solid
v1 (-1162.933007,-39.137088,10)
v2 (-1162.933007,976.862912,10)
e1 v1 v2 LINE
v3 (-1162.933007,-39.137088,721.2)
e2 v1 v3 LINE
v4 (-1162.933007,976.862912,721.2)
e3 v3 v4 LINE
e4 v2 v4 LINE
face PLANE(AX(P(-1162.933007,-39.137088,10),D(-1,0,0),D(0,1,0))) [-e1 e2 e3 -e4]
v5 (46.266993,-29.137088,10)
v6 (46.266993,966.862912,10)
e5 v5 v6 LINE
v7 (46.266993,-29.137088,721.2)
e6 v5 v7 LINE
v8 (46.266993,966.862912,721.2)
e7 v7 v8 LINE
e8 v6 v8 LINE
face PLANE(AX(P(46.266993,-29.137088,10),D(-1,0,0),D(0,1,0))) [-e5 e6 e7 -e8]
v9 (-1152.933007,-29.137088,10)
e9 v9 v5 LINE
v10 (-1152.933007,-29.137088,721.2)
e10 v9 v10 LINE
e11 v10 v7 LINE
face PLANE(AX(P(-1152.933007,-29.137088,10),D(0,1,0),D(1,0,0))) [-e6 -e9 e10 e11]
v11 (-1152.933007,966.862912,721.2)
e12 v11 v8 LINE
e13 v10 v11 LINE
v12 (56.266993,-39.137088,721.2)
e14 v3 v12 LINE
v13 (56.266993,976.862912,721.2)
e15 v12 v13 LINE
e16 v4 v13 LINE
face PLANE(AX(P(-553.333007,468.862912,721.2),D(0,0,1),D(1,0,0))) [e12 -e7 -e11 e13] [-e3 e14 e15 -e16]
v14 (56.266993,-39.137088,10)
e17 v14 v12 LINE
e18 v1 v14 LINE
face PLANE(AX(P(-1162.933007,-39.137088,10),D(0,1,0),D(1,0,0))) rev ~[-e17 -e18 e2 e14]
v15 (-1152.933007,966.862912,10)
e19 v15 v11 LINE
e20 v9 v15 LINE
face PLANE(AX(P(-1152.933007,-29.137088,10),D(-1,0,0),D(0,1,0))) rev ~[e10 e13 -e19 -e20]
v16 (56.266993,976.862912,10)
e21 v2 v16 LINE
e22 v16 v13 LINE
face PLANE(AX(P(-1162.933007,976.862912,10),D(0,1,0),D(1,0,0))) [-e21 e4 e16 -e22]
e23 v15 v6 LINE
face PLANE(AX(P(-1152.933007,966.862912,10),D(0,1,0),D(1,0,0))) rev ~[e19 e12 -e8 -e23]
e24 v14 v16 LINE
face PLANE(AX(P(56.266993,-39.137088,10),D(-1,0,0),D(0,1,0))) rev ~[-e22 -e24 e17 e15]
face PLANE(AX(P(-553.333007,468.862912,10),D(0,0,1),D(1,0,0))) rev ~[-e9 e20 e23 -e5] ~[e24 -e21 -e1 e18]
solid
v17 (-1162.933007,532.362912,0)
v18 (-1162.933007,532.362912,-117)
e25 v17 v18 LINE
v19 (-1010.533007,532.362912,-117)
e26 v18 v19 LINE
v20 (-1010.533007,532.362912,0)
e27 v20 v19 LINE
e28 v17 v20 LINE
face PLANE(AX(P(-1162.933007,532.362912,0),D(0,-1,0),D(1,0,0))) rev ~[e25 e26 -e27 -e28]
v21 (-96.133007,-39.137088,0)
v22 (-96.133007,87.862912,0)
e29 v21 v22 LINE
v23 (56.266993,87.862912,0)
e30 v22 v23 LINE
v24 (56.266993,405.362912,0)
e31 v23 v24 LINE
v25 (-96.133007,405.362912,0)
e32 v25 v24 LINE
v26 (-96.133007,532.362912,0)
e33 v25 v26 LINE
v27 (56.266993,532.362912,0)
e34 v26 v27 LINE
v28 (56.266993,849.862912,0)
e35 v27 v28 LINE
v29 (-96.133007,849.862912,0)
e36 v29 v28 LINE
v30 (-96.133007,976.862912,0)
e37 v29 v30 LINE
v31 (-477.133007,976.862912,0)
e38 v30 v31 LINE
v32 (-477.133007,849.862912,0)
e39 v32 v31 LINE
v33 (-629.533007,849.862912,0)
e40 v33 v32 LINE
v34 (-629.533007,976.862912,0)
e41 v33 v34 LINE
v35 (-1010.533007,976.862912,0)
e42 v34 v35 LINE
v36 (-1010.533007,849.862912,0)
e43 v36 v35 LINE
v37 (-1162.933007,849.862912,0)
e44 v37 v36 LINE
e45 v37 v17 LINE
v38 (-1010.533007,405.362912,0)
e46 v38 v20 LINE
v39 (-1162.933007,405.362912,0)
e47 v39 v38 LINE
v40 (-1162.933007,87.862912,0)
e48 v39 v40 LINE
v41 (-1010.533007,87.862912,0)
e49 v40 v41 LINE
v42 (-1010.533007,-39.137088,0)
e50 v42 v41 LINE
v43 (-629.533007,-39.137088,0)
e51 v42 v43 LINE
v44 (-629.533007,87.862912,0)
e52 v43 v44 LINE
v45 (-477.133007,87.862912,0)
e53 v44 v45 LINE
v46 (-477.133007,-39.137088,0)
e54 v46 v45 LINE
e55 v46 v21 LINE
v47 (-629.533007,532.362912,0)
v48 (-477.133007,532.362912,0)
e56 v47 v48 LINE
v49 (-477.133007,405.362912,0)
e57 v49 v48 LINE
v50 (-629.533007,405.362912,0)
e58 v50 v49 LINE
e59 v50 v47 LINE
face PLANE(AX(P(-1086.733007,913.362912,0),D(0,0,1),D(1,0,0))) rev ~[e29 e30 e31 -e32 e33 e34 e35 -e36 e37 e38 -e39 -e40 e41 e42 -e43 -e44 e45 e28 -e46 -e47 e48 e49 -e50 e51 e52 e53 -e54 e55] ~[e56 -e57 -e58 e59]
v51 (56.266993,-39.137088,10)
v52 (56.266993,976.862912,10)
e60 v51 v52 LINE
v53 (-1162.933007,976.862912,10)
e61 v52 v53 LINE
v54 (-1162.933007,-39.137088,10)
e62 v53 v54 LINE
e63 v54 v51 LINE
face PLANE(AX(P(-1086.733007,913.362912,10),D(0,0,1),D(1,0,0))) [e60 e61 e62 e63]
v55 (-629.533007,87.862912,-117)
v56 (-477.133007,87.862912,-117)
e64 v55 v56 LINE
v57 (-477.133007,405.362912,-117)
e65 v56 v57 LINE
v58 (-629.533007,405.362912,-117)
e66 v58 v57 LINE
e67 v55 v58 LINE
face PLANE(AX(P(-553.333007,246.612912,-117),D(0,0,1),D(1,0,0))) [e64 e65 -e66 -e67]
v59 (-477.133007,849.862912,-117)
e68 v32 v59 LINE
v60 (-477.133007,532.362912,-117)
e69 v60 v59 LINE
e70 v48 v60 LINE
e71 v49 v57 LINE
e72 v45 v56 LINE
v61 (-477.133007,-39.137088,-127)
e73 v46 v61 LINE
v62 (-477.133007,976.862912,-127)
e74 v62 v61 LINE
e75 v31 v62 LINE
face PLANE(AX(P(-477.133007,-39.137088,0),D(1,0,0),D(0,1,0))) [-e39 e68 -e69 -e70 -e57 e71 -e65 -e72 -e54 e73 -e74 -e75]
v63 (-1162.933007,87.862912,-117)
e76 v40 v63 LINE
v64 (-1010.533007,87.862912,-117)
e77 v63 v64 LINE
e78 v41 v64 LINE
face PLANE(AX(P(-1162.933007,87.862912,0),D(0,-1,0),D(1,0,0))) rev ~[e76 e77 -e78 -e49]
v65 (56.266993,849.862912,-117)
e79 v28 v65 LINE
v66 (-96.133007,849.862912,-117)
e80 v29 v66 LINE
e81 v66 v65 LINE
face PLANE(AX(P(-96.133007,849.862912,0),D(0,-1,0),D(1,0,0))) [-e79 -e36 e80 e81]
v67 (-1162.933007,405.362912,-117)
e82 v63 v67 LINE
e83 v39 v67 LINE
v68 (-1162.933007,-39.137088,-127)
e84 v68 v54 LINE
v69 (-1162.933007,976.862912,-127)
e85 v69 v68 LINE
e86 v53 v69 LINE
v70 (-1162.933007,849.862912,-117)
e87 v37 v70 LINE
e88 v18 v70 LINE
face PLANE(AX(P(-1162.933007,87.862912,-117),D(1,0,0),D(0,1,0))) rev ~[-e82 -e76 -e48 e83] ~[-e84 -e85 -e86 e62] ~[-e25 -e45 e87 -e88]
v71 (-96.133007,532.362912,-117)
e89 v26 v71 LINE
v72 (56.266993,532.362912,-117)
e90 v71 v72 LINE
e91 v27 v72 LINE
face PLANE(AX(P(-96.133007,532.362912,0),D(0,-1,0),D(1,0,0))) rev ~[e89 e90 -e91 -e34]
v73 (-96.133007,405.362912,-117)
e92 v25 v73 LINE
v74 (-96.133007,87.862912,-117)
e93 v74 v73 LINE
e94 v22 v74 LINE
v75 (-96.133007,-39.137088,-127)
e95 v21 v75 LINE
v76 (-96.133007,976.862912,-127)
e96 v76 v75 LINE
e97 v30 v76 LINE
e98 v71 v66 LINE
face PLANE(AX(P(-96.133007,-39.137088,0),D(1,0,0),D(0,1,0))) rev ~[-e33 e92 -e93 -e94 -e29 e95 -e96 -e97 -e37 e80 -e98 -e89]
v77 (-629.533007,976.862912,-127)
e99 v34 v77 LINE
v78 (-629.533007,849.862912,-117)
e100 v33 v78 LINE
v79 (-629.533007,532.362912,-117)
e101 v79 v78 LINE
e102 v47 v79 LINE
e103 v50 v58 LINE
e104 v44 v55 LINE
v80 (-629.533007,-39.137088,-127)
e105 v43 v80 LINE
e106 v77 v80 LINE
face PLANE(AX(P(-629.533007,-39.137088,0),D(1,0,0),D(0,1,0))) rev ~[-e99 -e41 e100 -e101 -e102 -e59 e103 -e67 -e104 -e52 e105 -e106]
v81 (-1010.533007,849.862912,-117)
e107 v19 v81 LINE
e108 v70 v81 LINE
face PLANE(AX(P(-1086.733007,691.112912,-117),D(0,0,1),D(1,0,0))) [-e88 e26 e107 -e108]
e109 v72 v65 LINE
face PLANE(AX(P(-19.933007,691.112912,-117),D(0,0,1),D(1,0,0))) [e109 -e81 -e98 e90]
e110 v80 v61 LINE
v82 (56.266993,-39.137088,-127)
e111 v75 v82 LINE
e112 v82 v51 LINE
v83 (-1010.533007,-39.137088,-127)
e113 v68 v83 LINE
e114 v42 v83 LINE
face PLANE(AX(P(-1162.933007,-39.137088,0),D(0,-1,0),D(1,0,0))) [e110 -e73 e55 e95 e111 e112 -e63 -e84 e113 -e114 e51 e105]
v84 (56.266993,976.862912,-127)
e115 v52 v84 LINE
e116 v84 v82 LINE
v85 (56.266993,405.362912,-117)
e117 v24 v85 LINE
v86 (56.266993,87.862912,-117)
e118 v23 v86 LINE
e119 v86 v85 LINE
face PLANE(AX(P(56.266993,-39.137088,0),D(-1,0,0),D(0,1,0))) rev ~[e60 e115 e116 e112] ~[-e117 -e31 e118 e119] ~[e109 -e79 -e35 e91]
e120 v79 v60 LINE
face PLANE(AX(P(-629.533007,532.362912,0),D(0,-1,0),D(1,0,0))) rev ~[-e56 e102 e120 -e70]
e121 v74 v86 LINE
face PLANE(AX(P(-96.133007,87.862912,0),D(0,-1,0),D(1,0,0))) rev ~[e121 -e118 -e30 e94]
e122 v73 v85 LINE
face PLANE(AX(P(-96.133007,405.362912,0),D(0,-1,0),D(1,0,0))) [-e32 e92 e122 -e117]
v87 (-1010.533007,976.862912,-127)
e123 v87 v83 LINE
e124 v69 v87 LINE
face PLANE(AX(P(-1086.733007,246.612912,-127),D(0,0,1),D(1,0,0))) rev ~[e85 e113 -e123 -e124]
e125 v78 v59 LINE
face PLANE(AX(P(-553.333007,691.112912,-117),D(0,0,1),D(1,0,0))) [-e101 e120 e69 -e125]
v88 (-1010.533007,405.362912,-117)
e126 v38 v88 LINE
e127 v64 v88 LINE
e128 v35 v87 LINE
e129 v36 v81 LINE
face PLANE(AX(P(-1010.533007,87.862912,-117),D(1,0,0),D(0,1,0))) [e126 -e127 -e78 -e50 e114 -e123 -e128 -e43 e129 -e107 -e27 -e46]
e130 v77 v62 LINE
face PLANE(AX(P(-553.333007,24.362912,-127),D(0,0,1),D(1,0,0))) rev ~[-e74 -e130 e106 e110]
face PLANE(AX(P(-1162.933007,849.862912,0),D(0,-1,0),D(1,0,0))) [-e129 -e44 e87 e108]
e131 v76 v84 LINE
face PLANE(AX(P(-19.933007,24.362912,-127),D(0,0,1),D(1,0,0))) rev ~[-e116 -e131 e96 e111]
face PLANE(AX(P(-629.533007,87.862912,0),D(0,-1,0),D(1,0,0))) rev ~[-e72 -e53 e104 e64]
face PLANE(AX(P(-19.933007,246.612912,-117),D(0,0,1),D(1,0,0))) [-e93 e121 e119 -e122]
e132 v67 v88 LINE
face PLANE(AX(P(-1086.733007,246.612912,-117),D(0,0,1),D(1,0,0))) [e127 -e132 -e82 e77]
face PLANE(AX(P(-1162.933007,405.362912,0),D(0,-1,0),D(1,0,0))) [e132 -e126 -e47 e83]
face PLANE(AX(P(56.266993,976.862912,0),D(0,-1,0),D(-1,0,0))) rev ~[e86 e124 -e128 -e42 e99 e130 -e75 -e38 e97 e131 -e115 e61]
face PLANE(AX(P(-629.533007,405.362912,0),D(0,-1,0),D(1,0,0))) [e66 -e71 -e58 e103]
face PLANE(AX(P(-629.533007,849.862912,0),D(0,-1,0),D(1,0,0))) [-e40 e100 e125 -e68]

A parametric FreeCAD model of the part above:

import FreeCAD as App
import Part
import Sketcher
Q = App.Units.Quantity

doc = App.newDocument("Part")
body = doc.addObject("PartDesign::Body", "Body")

# Sketch on XY plane
sketch1 = body.newObject("Sketcher::SketchObject", "Sketch")
sketch1.AttachmentSupport = (doc.getObject("XY_Plane"), [""])
sketch1.MapMode = "FlatFace"
sketch1.addGeometry(Part.LineSegment(App.Vector(-1163, 977, 0), App.Vector(-1163, -39, 0)), False)
sketch1.addGeometry(Part.LineSegment(App.Vector(-1163, -39, 0), App.Vector(56, -39, 0)), False)
sketch1.addGeometry(Part.LineSegment(App.Vector(56, -39, 0), App.Vector(56, 977, 0)), False)
sketch1.addGeometry(Part.LineSegment(App.Vector(56, 977, 0), App.Vector(-1163, 977, 0)), False)
sketch1.addConstraint(Sketcher.Constraint("Coincident", 0, 2, 1, 1))
sketch1.addConstraint(Sketcher.Constraint("Coincident", 1, 2, 2, 1))
sketch1.addConstraint(Sketcher.Constraint("Coincident", 2, 2, 3, 1))
sketch1.addConstraint(Sketcher.Constraint("Coincident", 3, 2, 0, 1))
sketch1.addConstraint(Sketcher.Constraint("Vertical", 0))
sketch1.addConstraint(Sketcher.Constraint("Horizontal", 1))
sketch1.addConstraint(Sketcher.Constraint("Vertical", 2))
sketch1.addConstraint(Sketcher.Constraint("Horizontal", 3))
sketch1.addConstraint(Sketcher.Constraint("DistanceX", 1, 1, 1, 2, Q("48 in")))
sketch1.addConstraint(Sketcher.Constraint("DistanceY", 0, 2, 0, 1, Q("40 in")))
sketch1.addConstraint(Sketcher.Constraint("DistanceX", 0, 2, -1, 1, 1162.933007))
sketch1.addConstraint(Sketcher.Constraint("DistanceY", 0, 2, -1, 1, 39.137088))
pad1 = body.newObject("PartDesign::Pad", "Pad")
pad1.Profile = sketch1
pad1.Length = 10

# Sketch on XY plane
sketch2 = body.newObject("Sketcher::SketchObject", "Sketch001")
sketch2.AttachmentSupport = (doc.getObject("XY_Plane"), [""])
sketch2.MapMode = "FlatFace"
sketch2.addGeometry(Part.LineSegment(App.Vector(-1163, 88, 0), App.Vector(-1163, -39, 0)), False)
sketch2.addGeometry(Part.LineSegment(App.Vector(-1163, -39, 0), App.Vector(-1011, -39, 0)), False)
sketch2.addGeometry(Part.LineSegment(App.Vector(-1011, -39, 0), App.Vector(-1011, 88, 0)), False)
sketch2.addGeometry(Part.LineSegment(App.Vector(-1011, 88, 0), App.Vector(-1163, 88, 0)), False)
sketch2.addGeometry(Part.LineSegment(App.Vector(-630, 88, 0), App.Vector(-630, -39, 0)), False)
sketch2.addGeometry(Part.LineSegment(App.Vector(-630, -39, 0), App.Vector(-477, -39, 0)), False)
sketch2.addGeometry(Part.LineSegment(App.Vector(-477, -39, 0), App.Vector(-477, 88, 0)), False)
sketch2.addGeometry(Part.LineSegment(App.Vector(-477, 88, 0), App.Vector(-630, 88, 0)), False)
sketch2.addGeometry(Part.LineSegment(App.Vector(-96, 88, 0), App.Vector(-96, -39, 0)), False)
sketch2.addGeometry(Part.LineSegment(App.Vector(-96, -39, 0), App.Vector(56, -39, 0)), False)
sketch2.addGeometry(Part.LineSegment(App.Vector(56, -39, 0), App.Vector(56, 88, 0)), False)
sketch2.addGeometry(Part.LineSegment(App.Vector(56, 88, 0), App.Vector(-96, 88, 0)), False)
sketch2.addGeometry(Part.LineSegment(App.Vector(-96, 532, 0), App.Vector(-96, 405, 0)), False)
sketch2.addGeometry(Part.LineSegment(App.Vector(-96, 405, 0), App.Vector(56, 405, 0)), False)
sketch2.addGeometry(Part.LineSegment(App.Vector(56, 405, 0), App.Vector(56, 532, 0)), False)
sketch2.addGeometry(Part.LineSegment(App.Vector(56, 532, 0), App.Vector(-96, 532, 0)), False)
sketch2.addGeometry(Part.LineSegment(App.Vector(-630, 532, 0), App.Vector(-630, 405, 0)), False)
sketch2.addGeometry(Part.LineSegment(App.Vector(-630, 405, 0), App.Vector(-477, 405, 0)), False)
sketch2.addGeometry(Part.LineSegment(App.Vector(-477, 405, 0), App.Vector(-477, 532, 0)), False)
sketch2.addGeometry(Part.LineSegment(App.Vector(-477, 532, 0), App.Vector(-630, 532, 0)), False)
sketch2.addGeometry(Part.LineSegment(App.Vector(-1163, 532, 0), App.Vector(-1163, 405, 0)), False)
sketch2.addGeometry(Part.LineSegment(App.Vector(-1163, 405, 0), App.Vector(-1011, 405, 0)), False)
sketch2.addGeometry(Part.LineSegment(App.Vector(-1011, 405, 0), App.Vector(-1011, 532, 0)), False)
sketch2.addGeometry(Part.LineSegment(App.Vector(-1011, 532, 0), App.Vector(-1163, 532, 0)), False)
sketch2.addGeometry(Part.LineSegment(App.Vector(-1163, 977, 0), App.Vector(-1163, 850, 0)), False)
sketch2.addGeometry(Part.LineSegment(App.Vector(-1163, 850, 0), App.Vector(-1011, 850, 0)), False)
sketch2.addGeometry(Part.LineSegment(App.Vector(-1011, 850, 0), App.Vector(-1011, 977, 0)), False)
sketch2.addGeometry(Part.LineSegment(App.Vector(-1011, 977, 0), App.Vector(-1163, 977, 0)), False)
sketch2.addGeometry(Part.LineSegment(App.Vector(-630, 977, 0), App.Vector(-630, 850, 0)), False)
sketch2.addGeometry(Part.LineSegment(App.Vector(-630, 850, 0), App.Vector(-477, 850, 0)), False)
sketch2.addGeometry(Part.LineSegment(App.Vector(-477, 850, 0), App.Vector(-477, 977, 0)), False)
sketch2.addGeometry(Part.LineSegment(App.Vector(-477, 977, 0), App.Vector(-630, 977, 0)), False)
sketch2.addGeometry(Part.LineSegment(App.Vector(-96, 977, 0), App.Vector(-96, 850, 0)), False)
sketch2.addGeometry(Part.LineSegment(App.Vector(-96, 850, 0), App.Vector(56, 850, 0)), False)
sketch2.addGeometry(Part.LineSegment(App.Vector(56, 850, 0), App.Vector(56, 977, 0)), False)
sketch2.addGeometry(Part.LineSegment(App.Vector(56, 977, 0), App.Vector(-96, 977, 0)), False)
sketch2.addConstraint(Sketcher.Constraint("Coincident", 0, 2, 1, 1))
sketch2.addConstraint(Sketcher.Constraint("Coincident", 1, 2, 2, 1))
sketch2.addConstraint(Sketcher.Constraint("Coincident", 2, 2, 3, 1))
sketch2.addConstraint(Sketcher.Constraint("Coincident", 3, 2, 0, 1))
sketch2.addConstraint(Sketcher.Constraint("Coincident", 4, 2, 5, 1))
sketch2.addConstraint(Sketcher.Constraint("Coincident", 5, 2, 6, 1))
sketch2.addConstraint(Sketcher.Constraint("Coincident", 6, 2, 7, 1))
sketch2.addConstraint(Sketcher.Constraint("Coincident", 7, 2, 4, 1))
sketch2.addConstraint(Sketcher.Constraint("Coincident", 8, 2, 9, 1))
sketch2.addConstraint(Sketcher.Constraint("Coincident", 9, 2, 10, 1))
sketch2.addConstraint(Sketcher.Constraint("Coincident", 10, 2, 11, 1))
sketch2.addConstraint(Sketcher.Constraint("Coincident", 11, 2, 8, 1))
sketch2.addConstraint(Sketcher.Constraint("Coincident", 12, 2, 13, 1))
sketch2.addConstraint(Sketcher.Constraint("Coincident", 13, 2, 14, 1))
sketch2.addConstraint(Sketcher.Constraint("Coincident", 14, 2, 15, 1))
sketch2.addConstraint(Sketcher.Constraint("Coincident", 15, 2, 12, 1))
sketch2.addConstraint(Sketcher.Constraint("Coincident", 16, 2, 17, 1))
sketch2.addConstraint(Sketcher.Constraint("Coincident", 17, 2, 18, 1))
sketch2.addConstraint(Sketcher.Constraint("Coincident", 18, 2, 19, 1))
sketch2.addConstraint(Sketcher.Constraint("Coincident", 19, 2, 16, 1))
sketch2.addConstraint(Sketcher.Constraint("Coincident", 20, 2, 21, 1))
sketch2.addConstraint(Sketcher.Constraint("Coincident", 21, 2, 22, 1))
sketch2.addConstraint(Sketcher.Constraint("Coincident", 22, 2, 23, 1))
sketch2.addConstraint(Sketcher.Constraint("Coincident", 23, 2, 20, 1))
sketch2.addConstraint(Sketcher.Constraint("Coincident", 24, 2, 25, 1))
sketch2.addConstraint(Sketcher.Constraint("Coincident", 25, 2, 26, 1))
sketch2.addConstraint(Sketcher.Constraint("Coincident", 26, 2, 27, 1))
sketch2.addConstraint(Sketcher.Constraint("Coincident", 27, 2, 24, 1))
sketch2.addConstraint(Sketcher.Constraint("Coincident", 28, 2, 29, 1))
sketch2.addConstraint(Sketcher.Constraint("Coincident", 29, 2, 30, 1))
sketch2.addConstraint(Sketcher.Constraint("Coincident", 30, 2, 31, 1))
sketch2.addConstraint(Sketcher.Constraint("Coincident", 31, 2, 28, 1))
sketch2.addConstraint(Sketcher.Constraint("Coincident", 32, 2, 33, 1))
sketch2.addConstraint(Sketcher.Constraint("Coincident", 33, 2, 34, 1))
sketch2.addConstraint(Sketcher.Constraint("Coincident", 34, 2, 35, 1))
sketch2.addConstraint(Sketcher.Constraint("Coincident", 35, 2, 32, 1))
sketch2.addConstraint(Sketcher.Constraint("Vertical", 0))
sketch2.addConstraint(Sketcher.Constraint("Horizontal", 1))
sketch2.addConstraint(Sketcher.Constraint("Vertical", 2))
sketch2.addConstraint(Sketcher.Constraint("Horizontal", 3))
sketch2.addConstraint(Sketcher.Constraint("Vertical", 4))
sketch2.addConstraint(Sketcher.Constraint("Horizontal", 5))
sketch2.addConstraint(Sketcher.Constraint("Vertical", 6))
sketch2.addConstraint(Sketcher.Constraint("Horizontal", 7))
sketch2.addConstraint(Sketcher.Constraint("Vertical", 8))
sketch2.addConstraint(Sketcher.Constraint("Horizontal", 9))
sketch2.addConstraint(Sketcher.Constraint("Vertical", 10))
sketch2.addConstraint(Sketcher.Constraint("Horizontal", 11))
sketch2.addConstraint(Sketcher.Constraint("Vertical", 12))
sketch2.addConstraint(Sketcher.Constraint("Horizontal", 13))
sketch2.addConstraint(Sketcher.Constraint("Vertical", 14))
sketch2.addConstraint(Sketcher.Constraint("Horizontal", 15))
sketch2.addConstraint(Sketcher.Constraint("Vertical", 16))
sketch2.addConstraint(Sketcher.Constraint("Horizontal", 17))
sketch2.addConstraint(Sketcher.Constraint("Vertical", 18))
sketch2.addConstraint(Sketcher.Constraint("Horizontal", 19))
sketch2.addConstraint(Sketcher.Constraint("Vertical", 20))
sketch2.addConstraint(Sketcher.Constraint("Horizontal", 21))
sketch2.addConstraint(Sketcher.Constraint("Vertical", 22))
sketch2.addConstraint(Sketcher.Constraint("Horizontal", 23))
sketch2.addConstraint(Sketcher.Constraint("Vertical", 24))
sketch2.addConstraint(Sketcher.Constraint("Horizontal", 25))
sketch2.addConstraint(Sketcher.Constraint("Vertical", 26))
sketch2.addConstraint(Sketcher.Constraint("Horizontal", 27))
sketch2.addConstraint(Sketcher.Constraint("Vertical", 28))
sketch2.addConstraint(Sketcher.Constraint("Horizontal", 29))
sketch2.addConstraint(Sketcher.Constraint("Vertical", 30))
sketch2.addConstraint(Sketcher.Constraint("Horizontal", 31))
sketch2.addConstraint(Sketcher.Constraint("Vertical", 32))
sketch2.addConstraint(Sketcher.Constraint("Horizontal", 33))
sketch2.addConstraint(Sketcher.Constraint("Vertical", 34))
sketch2.addConstraint(Sketcher.Constraint("Horizontal", 35))
sketch2.addConstraint(Sketcher.Constraint("Horizontal", 1, 2, 4, 2))
sketch2.addConstraint(Sketcher.Constraint("Horizontal", 3, 2, 6, 2))
sketch2.addConstraint(Sketcher.Constraint("Horizontal", 5, 2, 8, 2))
sketch2.addConstraint(Sketcher.Constraint("Horizontal", 7, 2, 10, 2))
sketch2.addConstraint(Sketcher.Constraint("Horizontal", 13, 2, 16, 2))
sketch2.addConstraint(Sketcher.Constraint("Horizontal", 15, 2, 18, 2))
sketch2.addConstraint(Sketcher.Constraint("Horizontal", 17, 2, 20, 2))
sketch2.addConstraint(Sketcher.Constraint("Horizontal", 19, 2, 22, 2))
sketch2.addConstraint(Sketcher.Constraint("Horizontal", 25, 2, 28, 2))
sketch2.addConstraint(Sketcher.Constraint("Horizontal", 27, 2, 30, 2))
sketch2.addConstraint(Sketcher.Constraint("Horizontal", 29, 2, 32, 2))
sketch2.addConstraint(Sketcher.Constraint("Horizontal", 31, 2, 34, 2))
sketch2.addConstraint(Sketcher.Constraint("Vertical", 11, 2, 12, 2))
sketch2.addConstraint(Sketcher.Constraint("Vertical", 10, 2, 13, 2))
sketch2.addConstraint(Sketcher.Constraint("Vertical", 7, 2, 16, 2))
sketch2.addConstraint(Sketcher.Constraint("Vertical", 6, 2, 17, 2))
sketch2.addConstraint(Sketcher.Constraint("Vertical", 3, 2, 20, 2))
sketch2.addConstraint(Sketcher.Constraint("Vertical", 2, 2, 21, 2))
sketch2.addConstraint(Sketcher.Constraint("Vertical", 23, 2, 24, 2))
sketch2.addConstraint(Sketcher.Constraint("Vertical", 22, 2, 25, 2))
sketch2.addConstraint(Sketcher.Constraint("Vertical", 19, 2, 28, 2))
sketch2.addConstraint(Sketcher.Constraint("Vertical", 18, 2, 29, 2))
sketch2.addConstraint(Sketcher.Constraint("Vertical", 15, 2, 32, 2))
sketch2.addConstraint(Sketcher.Constraint("Vertical", 14, 2, 33, 2))
sketch2.addConstraint(Sketcher.Constraint("Equal", 3, 5))
sketch2.addConstraint(Sketcher.Constraint("Equal", 7, 9))
sketch2.addConstraint(Sketcher.Constraint("Equal", 10, 12))
sketch2.addConstraint(Sketcher.Constraint("Equal", 22, 24))
sketch2.addConstraint(Sketcher.Constraint("DistanceX", 1, 1, 1, 2, Q("6 in")))
sketch2.addConstraint(Sketcher.Constraint("DistanceY", 0, 2, 0, 1, Q("5 in")))
sketch2.addConstraint(Sketcher.Constraint("DistanceX", 1, 2, 4, 2, Q("15 in")))
sketch2.addConstraint(Sketcher.Constraint("DistanceX", 5, 2, 8, 2, Q("15 in")))
sketch2.addConstraint(Sketcher.Constraint("DistanceY", 11, 2, 12, 2, Q("12.5 in")))
sketch2.addConstraint(Sketcher.Constraint("DistanceY", 23, 2, 24, 2, Q("12.5 in")))
sketch2.addConstraint(Sketcher.Constraint("DistanceX", 0, 2, -1, 1, 1162.933007))
sketch2.addConstraint(Sketcher.Constraint("DistanceY", 0, 2, -1, 1, 39.137088))
pad2 = body.newObject("PartDesign::Pad", "Pad001")
pad2.Profile = sketch2
pad2.Length = Q("5 in")
pad2.Reversed = True

# Sketch on XY plane
sketch3 = body.newObject("Sketcher::SketchObject", "Sketch002")
sketch3.AttachmentSupport = (doc.getObject("XY_Plane"), [""])
sketch3.MapMode = "FlatFace"
sketch3.AttachmentOffset = App.Placement(App.Vector(0, 0, -117), App.Rotation())
sketch3.addGeometry(Part.LineSegment(App.Vector(-1163, 405, 0), App.Vector(-1163, 88, 0)), False)
sketch3.addGeometry(Part.LineSegment(App.Vector(-1163, 88, 0), App.Vector(-1011, 88, 0)), False)
sketch3.addGeometry(Part.LineSegment(App.Vector(-1011, 88, 0), App.Vector(-1011, 405, 0)), False)
sketch3.addGeometry(Part.LineSegment(App.Vector(-1011, 405, 0), App.Vector(-1163, 405, 0)), False)
sketch3.addGeometry(Part.LineSegment(App.Vector(-630, 405, 0), App.Vector(-630, 88, 0)), False)
sketch3.addGeometry(Part.LineSegment(App.Vector(-630, 88, 0), App.Vector(-477, 88, 0)), False)
sketch3.addGeometry(Part.LineSegment(App.Vector(-477, 88, 0), App.Vector(-477, 405, 0)), False)
sketch3.addGeometry(Part.LineSegment(App.Vector(-477, 405, 0), App.Vector(-630, 405, 0)), False)
sketch3.addGeometry(Part.LineSegment(App.Vector(-96, 405, 0), App.Vector(-96, 88, 0)), False)
sketch3.addGeometry(Part.LineSegment(App.Vector(-96, 88, 0), App.Vector(56, 88, 0)), False)
sketch3.addGeometry(Part.LineSegment(App.Vector(56, 88, 0), App.Vector(56, 405, 0)), False)
sketch3.addGeometry(Part.LineSegment(App.Vector(56, 405, 0), App.Vector(-96, 405, 0)), False)
sketch3.addGeometry(Part.LineSegment(App.Vector(-96, 850, 0), App.Vector(-96, 532, 0)), False)
sketch3.addGeometry(Part.LineSegment(App.Vector(-96, 532, 0), App.Vector(56, 532, 0)), False)
sketch3.addGeometry(Part.LineSegment(App.Vector(56, 532, 0), App.Vector(56, 850, 0)), False)
sketch3.addGeometry(Part.LineSegment(App.Vector(56, 850, 0), App.Vector(-96, 850, 0)), False)
sketch3.addGeometry(Part.LineSegment(App.Vector(-630, 850, 0), App.Vector(-630, 532, 0)), False)
sketch3.addGeometry(Part.LineSegment(App.Vector(-630, 532, 0), App.Vector(-477, 532, 0)), False)
sketch3.addGeometry(Part.LineSegment(App.Vector(-477, 532, 0), App.Vector(-477, 850, 0)), False)
sketch3.addGeometry(Part.LineSegment(App.Vector(-477, 850, 0), App.Vector(-630, 850, 0)), False)
sketch3.addGeometry(Part.LineSegment(App.Vector(-1163, 850, 0), App.Vector(-1163, 532, 0)), False)
sketch3.addGeometry(Part.LineSegment(App.Vector(-1163, 532, 0), App.Vector(-1011, 532, 0)), False)
sketch3.addGeometry(Part.LineSegment(App.Vector(-1011, 532, 0), App.Vector(-1011, 850, 0)), False)
sketch3.addGeometry(Part.LineSegment(App.Vector(-1011, 850, 0), App.Vector(-1163, 850, 0)), False)
sketch3.addConstraint(Sketcher.Constraint("Coincident", 0, 2, 1, 1))
sketch3.addConstraint(Sketcher.Constraint("Coincident", 1, 2, 2, 1))
sketch3.addConstraint(Sketcher.Constraint("Coincident", 2, 2, 3, 1))
sketch3.addConstraint(Sketcher.Constraint("Coincident", 3, 2, 0, 1))
sketch3.addConstraint(Sketcher.Constraint("Coincident", 4, 2, 5, 1))
sketch3.addConstraint(Sketcher.Constraint("Coincident", 5, 2, 6, 1))
sketch3.addConstraint(Sketcher.Constraint("Coincident", 6, 2, 7, 1))
sketch3.addConstraint(Sketcher.Constraint("Coincident", 7, 2, 4, 1))
sketch3.addConstraint(Sketcher.Constraint("Coincident", 8, 2, 9, 1))
sketch3.addConstraint(Sketcher.Constraint("Coincident", 9, 2, 10, 1))
sketch3.addConstraint(Sketcher.Constraint("Coincident", 10, 2, 11, 1))
sketch3.addConstraint(Sketcher.Constraint("Coincident", 11, 2, 8, 1))
sketch3.addConstraint(Sketcher.Constraint("Coincident", 12, 2, 13, 1))
sketch3.addConstraint(Sketcher.Constraint("Coincident", 13, 2, 14, 1))
sketch3.addConstraint(Sketcher.Constraint("Coincident", 14, 2, 15, 1))
sketch3.addConstraint(Sketcher.Constraint("Coincident", 15, 2, 12, 1))
sketch3.addConstraint(Sketcher.Constraint("Coincident", 16, 2, 17, 1))
sketch3.addConstraint(Sketcher.Constraint("Coincident", 17, 2, 18, 1))
sketch3.addConstraint(Sketcher.Constraint("Coincident", 18, 2, 19, 1))
sketch3.addConstraint(Sketcher.Constraint("Coincident", 19, 2, 16, 1))
sketch3.addConstraint(Sketcher.Constraint("Coincident", 20, 2, 21, 1))
sketch3.addConstraint(Sketcher.Constraint("Coincident", 21, 2, 22, 1))
sketch3.addConstraint(Sketcher.Constraint("Coincident", 22, 2, 23, 1))
sketch3.addConstraint(Sketcher.Constraint("Coincident", 23, 2, 20, 1))
sketch3.addConstraint(Sketcher.Constraint("Vertical", 0))
sketch3.addConstraint(Sketcher.Constraint("Horizontal", 1))
sketch3.addConstraint(Sketcher.Constraint("Vertical", 2))
sketch3.addConstraint(Sketcher.Constraint("Horizontal", 3))
sketch3.addConstraint(Sketcher.Constraint("Vertical", 4))
sketch3.addConstraint(Sketcher.Constraint("Horizontal", 5))
sketch3.addConstraint(Sketcher.Constraint("Vertical", 6))
sketch3.addConstraint(Sketcher.Constraint("Horizontal", 7))
sketch3.addConstraint(Sketcher.Constraint("Vertical", 8))
sketch3.addConstraint(Sketcher.Constraint("Horizontal", 9))
sketch3.addConstraint(Sketcher.Constraint("Vertical", 10))
sketch3.addConstraint(Sketcher.Constraint("Horizontal", 11))
sketch3.addConstraint(Sketcher.Constraint("Vertical", 12))
sketch3.addConstraint(Sketcher.Constraint("Horizontal", 13))
sketch3.addConstraint(Sketcher.Constraint("Vertical", 14))
sketch3.addConstraint(Sketcher.Constraint("Horizontal", 15))
sketch3.addConstraint(Sketcher.Constraint("Vertical", 16))
sketch3.addConstraint(Sketcher.Constraint("Horizontal", 17))
sketch3.addConstraint(Sketcher.Constraint("Vertical", 18))
sketch3.addConstraint(Sketcher.Constraint("Horizontal", 19))
sketch3.addConstraint(Sketcher.Constraint("Vertical", 20))
sketch3.addConstraint(Sketcher.Constraint("Horizontal", 21))
sketch3.addConstraint(Sketcher.Constraint("Vertical", 22))
sketch3.addConstraint(Sketcher.Constraint("Horizontal", 23))
sketch3.addConstraint(Sketcher.Constraint("Horizontal", 1, 2, 4, 2))
sketch3.addConstraint(Sketcher.Constraint("Horizontal", 3, 2, 6, 2))
sketch3.addConstraint(Sketcher.Constraint("Horizontal", 5, 2, 8, 2))
sketch3.addConstraint(Sketcher.Constraint("Horizontal", 7, 2, 10, 2))
sketch3.addConstraint(Sketcher.Constraint("Horizontal", 13, 2, 16, 2))
sketch3.addConstraint(Sketcher.Constraint("Horizontal", 15, 2, 18, 2))
sketch3.addConstraint(Sketcher.Constraint("Horizontal", 17, 2, 20, 2))
sketch3.addConstraint(Sketcher.Constraint("Horizontal", 19, 2, 22, 2))
sketch3.addConstraint(Sketcher.Constraint("Vertical", 11, 2, 12, 2))
sketch3.addConstraint(Sketcher.Constraint("Vertical", 10, 2, 13, 2))
sketch3.addConstraint(Sketcher.Constraint("Vertical", 7, 2, 16, 2))
sketch3.addConstraint(Sketcher.Constraint("Vertical", 6, 2, 17, 2))
sketch3.addConstraint(Sketcher.Constraint("Vertical", 3, 2, 20, 2))
sketch3.addConstraint(Sketcher.Constraint("Vertical", 2, 2, 21, 2))
sketch3.addConstraint(Sketcher.Constraint("Equal", 3, 5))
sketch3.addConstraint(Sketcher.Constraint("Equal", 7, 9))
sketch3.addConstraint(Sketcher.Constraint("Equal", 10, 12))
sketch3.addConstraint(Sketcher.Constraint("DistanceX", 1, 1, 1, 2, Q("6 in")))
sketch3.addConstraint(Sketcher.Constraint("DistanceY", 0, 2, 0, 1, Q("12.5 in")))
sketch3.addConstraint(Sketcher.Constraint("DistanceX", 1, 2, 4, 2, Q("15 in")))
sketch3.addConstraint(Sketcher.Constraint("DistanceX", 5, 2, 8, 2, Q("15 in")))
sketch3.addConstraint(Sketcher.Constraint("DistanceY", 11, 2, 12, 2, Q("5 in")))
sketch3.addConstraint(Sketcher.Constraint("DistanceX", 0, 2, -1, 1, 1162.933007))
sketch3.addConstraint(Sketcher.Constraint("DistanceY", -1, 1, 0, 2, 87.862912))
pad3 = body.newObject("PartDesign::Pad", "Pad002")
pad3.Profile = sketch3
pad3.Length = 10
pad3.Reversed = True
body2 = doc.addObject("PartDesign::Body", "Body001")

# Sketch on XY plane
sketch4 = body2.newObject("Sketcher::SketchObject", "Sketch003")
sketch4.AttachmentSupport = (doc.getObject("XY_Plane001"), [""])
sketch4.MapMode = "FlatFace"
sketch4.AttachmentOffset = App.Placement(App.Vector(0, 0, 10), App.Rotation())
sketch4.addGeometry(Part.LineSegment(App.Vector(-1163, 977, 0), App.Vector(-1163, -39, 0)), False)
sketch4.addGeometry(Part.LineSegment(App.Vector(-1163, -39, 0), App.Vector(56, -39, 0)), False)
sketch4.addGeometry(Part.LineSegment(App.Vector(56, -39, 0), App.Vector(56, 977, 0)), False)
sketch4.addGeometry(Part.LineSegment(App.Vector(56, 977, 0), App.Vector(-1163, 977, 0)), False)
sketch4.addGeometry(Part.LineSegment(App.Vector(46, -29, 0), App.Vector(-1153, -29, 0)), False)
sketch4.addGeometry(Part.LineSegment(App.Vector(-1153, -29, 0), App.Vector(-1153, 967, 0)), False)
sketch4.addGeometry(Part.LineSegment(App.Vector(-1153, 967, 0), App.Vector(46, 967, 0)), False)
sketch4.addGeometry(Part.LineSegment(App.Vector(46, 967, 0), App.Vector(46, -29, 0)), False)
sketch4.addConstraint(Sketcher.Constraint("Coincident", 0, 2, 1, 1))
sketch4.addConstraint(Sketcher.Constraint("Coincident", 1, 2, 2, 1))
sketch4.addConstraint(Sketcher.Constraint("Coincident", 2, 2, 3, 1))
sketch4.addConstraint(Sketcher.Constraint("Coincident", 3, 2, 0, 1))
sketch4.addConstraint(Sketcher.Constraint("Coincident", 4, 2, 5, 1))
sketch4.addConstraint(Sketcher.Constraint("Coincident", 5, 2, 6, 1))
sketch4.addConstraint(Sketcher.Constraint("Coincident", 6, 2, 7, 1))
sketch4.addConstraint(Sketcher.Constraint("Coincident", 7, 2, 4, 1))
sketch4.addConstraint(Sketcher.Constraint("Vertical", 0))
sketch4.addConstraint(Sketcher.Constraint("Horizontal", 1))
sketch4.addConstraint(Sketcher.Constraint("Vertical", 2))
sketch4.addConstraint(Sketcher.Constraint("Horizontal", 3))
sketch4.addConstraint(Sketcher.Constraint("Horizontal", 4))
sketch4.addConstraint(Sketcher.Constraint("Vertical", 5))
sketch4.addConstraint(Sketcher.Constraint("Horizontal", 6))
sketch4.addConstraint(Sketcher.Constraint("Vertical", 7))
sketch4.addConstraint(Sketcher.Constraint("DistanceX", 1, 1, 1, 2, Q("48 in")))
sketch4.addConstraint(Sketcher.Constraint("DistanceY", 0, 2, 0, 1, Q("40 in")))
sketch4.addConstraint(Sketcher.Constraint("DistanceX", 4, 2, 4, 1, 1199.2))
sketch4.addConstraint(Sketcher.Constraint("DistanceY", 5, 1, 5, 2, 996.0))
sketch4.addConstraint(Sketcher.Constraint("DistanceX", 0, 2, 4, 2, 10.0))
sketch4.addConstraint(Sketcher.Constraint("DistanceY", 0, 2, 4, 2, 10.0))
sketch4.addConstraint(Sketcher.Constraint("DistanceX", 0, 2, -1, 1, 1162.933007))
sketch4.addConstraint(Sketcher.Constraint("DistanceY", 0, 2, -1, 1, 39.137088))
pad4 = body2.newObject("PartDesign::Pad", "Pad003")
pad4.Profile = sketch4
pad4.Length = Q("28 in")

doc.recompute()
